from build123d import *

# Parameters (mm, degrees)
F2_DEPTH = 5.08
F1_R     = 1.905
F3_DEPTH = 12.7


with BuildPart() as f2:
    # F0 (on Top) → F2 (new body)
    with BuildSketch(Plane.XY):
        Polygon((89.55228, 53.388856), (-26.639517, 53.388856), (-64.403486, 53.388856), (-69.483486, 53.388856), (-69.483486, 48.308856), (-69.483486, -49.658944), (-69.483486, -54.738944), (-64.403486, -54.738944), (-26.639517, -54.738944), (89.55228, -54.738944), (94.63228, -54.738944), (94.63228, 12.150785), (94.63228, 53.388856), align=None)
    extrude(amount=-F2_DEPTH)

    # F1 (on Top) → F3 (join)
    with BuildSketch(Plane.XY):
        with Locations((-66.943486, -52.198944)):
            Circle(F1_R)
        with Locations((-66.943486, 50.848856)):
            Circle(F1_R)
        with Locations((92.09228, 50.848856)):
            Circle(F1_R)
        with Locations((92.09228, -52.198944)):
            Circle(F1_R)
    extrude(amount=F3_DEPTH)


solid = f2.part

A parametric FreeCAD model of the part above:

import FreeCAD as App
import Part
import Sketcher

V = App.Vector
Q = App.Units.Quantity


def add_polygon(sketch, points):
    """Adds a closed chain of lines whose ends are joined by coincident constraints."""
    first, n = sketch.GeometryCount, len(points)
    for a, b in zip(points, points[1:] + points[:1]):
        sketch.addGeometry(Part.LineSegment(App.Vector(*a, 0), App.Vector(*b, 0)), False)
    for i in range(n):
        sketch.addConstraint(Sketcher.Constraint("Coincident", first + i, 2, first + (i + 1) % n, 1))

doc = App.newDocument("Part")
body = doc.addObject("PartDesign::Body", "Body")

sketch1 = body.newObject("Sketcher::SketchObject", "Sketch")
sketch1.AttachmentSupport = (doc.getObject("XY_Plane"), [""])
sketch1.MapMode = "FlatFace"
add_polygon(sketch1, [(-69, 53), (-69, -55), (95, -55), (95, 53)])
sketch1.addConstraint(Sketcher.Constraint("Vertical", 0))
sketch1.addConstraint(Sketcher.Constraint("Horizontal", 1))
sketch1.addConstraint(Sketcher.Constraint("Vertical", 2))
sketch1.addConstraint(Sketcher.Constraint("Horizontal", 3))
sketch1.addConstraint(Sketcher.Constraint("DistanceY", 0, 2, 0, 1, Q("4.257 in")))
sketch1.addConstraint(Sketcher.Constraint("DistanceX", 1, 1, 1, 2, Q("164.115766 mm")))
sketch1.addConstraint(Sketcher.Constraint("DistanceX", -1, 1, 1, 2, Q("94.63228 mm")))
sketch1.addConstraint(Sketcher.Constraint("DistanceY", 0, 2, -1, 1, Q("54.738944 mm")))
pad1 = body.newObject("PartDesign::Pad", "Pad")
pad1.Profile = sketch1
pad1.Length = Q("0.2 in")
pad1.Reversed = True

sketch2 = body.newObject("Sketcher::SketchObject", "Sketch001")
sketch2.AttachmentSupport = (doc.getObject("XY_Plane"), [""])
sketch2.MapMode = "FlatFace"
sketch2.addGeometry(Part.Circle(V(-66.9, -52.2, 0), V(0, 0, 1), 1.9), False)
sketch2.addGeometry(Part.Circle(V(-66.9, 50.8, 0), V(0, 0, 1), 1.9), False)
sketch2.addGeometry(Part.Circle(V(92.1, 50.8, 0), V(0, 0, 1), 1.9), False)
sketch2.addGeometry(Part.Circle(V(92.1, -52.2, 0), V(0, 0, 1), 1.9), False)
sketch2.addConstraint(Sketcher.Constraint("Equal", 0, 1))
sketch2.addConstraint(Sketcher.Constraint("Equal", 1, 2))
sketch2.addConstraint(Sketcher.Constraint("Equal", 2, 3))
sketch2.addConstraint(Sketcher.Constraint("Horizontal", 1, 3, 2, 3))
sketch2.addConstraint(Sketcher.Constraint("Horizontal", 0, 3, 3, 3))
sketch2.addConstraint(Sketcher.Constraint("Vertical", 0, 3, 1, 3))
sketch2.addConstraint(Sketcher.Constraint("Vertical", 2, 3, 3, 3))
sketch2.addConstraint(Sketcher.Constraint("Diameter", 0, Q("0.15 in")))
sketch2.addConstraint(Sketcher.Constraint("DistanceY", 0, 3, 1, 3, Q("4.057 in")))
sketch2.addConstraint(Sketcher.Constraint("DistanceX", -1, 1, 2, 3, Q("92.09228 mm")))
sketch2.addConstraint(Sketcher.Constraint("DistanceX", 0, 3, -1, 1, Q("66.943486 mm")))
sketch2.addConstraint(Sketcher.Constraint("DistanceY", 0, 3, -1, 1, Q("52.198944 mm")))
pad2 = body.newObject("PartDesign::Pad", "Pad001")
pad2.Profile = sketch2
pad2.Length = Q("0.5 in")

doc.recompute()
